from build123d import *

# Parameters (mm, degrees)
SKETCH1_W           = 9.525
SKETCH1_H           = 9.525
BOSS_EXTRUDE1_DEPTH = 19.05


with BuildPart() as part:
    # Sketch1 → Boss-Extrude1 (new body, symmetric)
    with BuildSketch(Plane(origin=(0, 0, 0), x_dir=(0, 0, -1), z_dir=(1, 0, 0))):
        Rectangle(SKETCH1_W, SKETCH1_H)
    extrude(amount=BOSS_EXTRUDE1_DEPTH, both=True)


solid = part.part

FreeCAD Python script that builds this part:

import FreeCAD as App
import Part
import Sketcher
from FreeCAD import Vector
Q = App.Units.Quantity

doc = App.newDocument("Part")
body = doc.addObject("PartDesign::Body", "Body")

# Sketch on YZ plane
sketch1 = doc.addObject("Sketcher::SketchObject", "Sketch")
body.addObject(sketch1)
sketch1.AttachmentSupport = (doc.YZ_Plane, [""])
sketch1.MapMode = "FlatFace"
sketch1.addGeometry(Part.LineSegment(Vector(5, 5, 0), Vector(-5, 5, 0)), False)
sketch1.addGeometry(Part.LineSegment(Vector(-5, 5, 0), Vector(-5, -5, 0)), False)
sketch1.addGeometry(Part.LineSegment(Vector(-5, -5, 0), Vector(5, -5, 0)), False)
sketch1.addGeometry(Part.LineSegment(Vector(5, -5, 0), Vector(5, 5, 0)), False)
sketch1.addConstraint(Sketcher.Constraint("Coincident", 0, 2, 1, 1))
sketch1.addConstraint(Sketcher.Constraint("Coincident", 1, 2, 2, 1))
sketch1.addConstraint(Sketcher.Constraint("Coincident", 2, 2, 3, 1))
sketch1.addConstraint(Sketcher.Constraint("Coincident", 3, 2, 0, 1))
sketch1.addConstraint(Sketcher.Constraint("Horizontal", 0))
sketch1.addConstraint(Sketcher.Constraint("Vertical", 1))
sketch1.addConstraint(Sketcher.Constraint("Horizontal", 2))
sketch1.addConstraint(Sketcher.Constraint("Vertical", 3))
sketch1.addConstraint(Sketcher.Constraint("Symmetric", 0, 2, 2, 2, -1, 1))
sketch1.addConstraint(Sketcher.Constraint("Equal", 2, 1))
sketch1.addConstraint(Sketcher.Constraint("DistanceX", 0, 2, 0, 1, Q("0.375 in")))
pad1 = doc.addObject("PartDesign::Pad", "Pad")
body.addObject(pad1)
pad1.Profile = sketch1
pad1.Length = Q("1.5 in")
pad1.Midplane = True

doc.recompute()
